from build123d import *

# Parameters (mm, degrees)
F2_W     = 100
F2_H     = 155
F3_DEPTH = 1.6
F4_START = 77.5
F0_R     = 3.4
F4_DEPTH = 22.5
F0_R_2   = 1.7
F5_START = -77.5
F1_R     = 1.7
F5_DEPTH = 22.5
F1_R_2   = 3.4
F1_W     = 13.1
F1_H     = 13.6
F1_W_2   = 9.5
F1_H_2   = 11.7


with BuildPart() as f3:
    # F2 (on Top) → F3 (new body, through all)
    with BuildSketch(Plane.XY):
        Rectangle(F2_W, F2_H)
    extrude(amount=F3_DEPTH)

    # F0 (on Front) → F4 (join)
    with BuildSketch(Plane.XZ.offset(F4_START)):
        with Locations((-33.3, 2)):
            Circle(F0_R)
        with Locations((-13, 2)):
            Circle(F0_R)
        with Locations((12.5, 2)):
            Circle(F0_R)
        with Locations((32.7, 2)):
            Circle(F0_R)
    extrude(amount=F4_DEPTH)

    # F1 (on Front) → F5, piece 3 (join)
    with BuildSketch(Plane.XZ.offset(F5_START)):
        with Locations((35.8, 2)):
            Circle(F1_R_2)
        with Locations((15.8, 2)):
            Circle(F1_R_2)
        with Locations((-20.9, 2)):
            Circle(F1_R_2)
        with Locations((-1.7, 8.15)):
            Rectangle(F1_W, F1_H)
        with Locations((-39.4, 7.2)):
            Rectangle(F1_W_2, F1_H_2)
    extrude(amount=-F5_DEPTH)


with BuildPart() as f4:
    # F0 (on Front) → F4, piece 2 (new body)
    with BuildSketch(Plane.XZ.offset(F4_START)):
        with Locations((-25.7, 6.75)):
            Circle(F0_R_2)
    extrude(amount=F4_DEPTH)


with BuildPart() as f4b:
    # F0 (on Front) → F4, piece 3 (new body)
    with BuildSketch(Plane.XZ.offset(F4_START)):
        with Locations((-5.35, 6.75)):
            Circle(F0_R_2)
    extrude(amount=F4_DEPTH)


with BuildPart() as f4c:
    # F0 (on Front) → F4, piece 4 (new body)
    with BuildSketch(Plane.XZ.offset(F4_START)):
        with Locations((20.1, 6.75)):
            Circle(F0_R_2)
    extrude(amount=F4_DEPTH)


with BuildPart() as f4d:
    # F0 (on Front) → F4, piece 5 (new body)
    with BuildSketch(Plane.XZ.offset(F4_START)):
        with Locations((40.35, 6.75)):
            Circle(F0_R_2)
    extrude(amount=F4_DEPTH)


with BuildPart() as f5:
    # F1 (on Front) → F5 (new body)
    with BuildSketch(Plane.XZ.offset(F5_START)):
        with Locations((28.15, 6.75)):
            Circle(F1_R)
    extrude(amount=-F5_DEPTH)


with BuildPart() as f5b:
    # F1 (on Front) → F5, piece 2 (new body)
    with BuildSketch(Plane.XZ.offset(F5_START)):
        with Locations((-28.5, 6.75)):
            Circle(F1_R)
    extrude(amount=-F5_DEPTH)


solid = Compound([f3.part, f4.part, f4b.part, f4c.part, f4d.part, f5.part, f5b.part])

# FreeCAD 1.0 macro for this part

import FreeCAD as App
import Part
import Sketcher
from FreeCAD import Vector

doc = App.newDocument("Part")
params = doc.addObject("Spreadsheet::Sheet", "Params")
for row, (alias, value) in enumerate([
    ("sketch1_width", "100 mm"),
    ("sketch1_height", "155 mm"),
    ("pad1_length", "1.6 mm"),
    ("sketch2_diameter", "6.8 mm"),
    ("pad2_length", "22.5 mm"),
    ("sketch3_diameter", "6.8 mm"),
    ("sketch3_width", "13.1 mm"),
    ("sketch3_width2", "9.5 mm"),
    ("sketch3_height", "13.6 mm"),
    ("sketch3_height2", "11.7 mm"),
    ("pad3_length", "22.5 mm"),
    ("sketch4_diameter", "3.4 mm"),
    ("pad4_length", "22.5 mm"),
    ("sketch5_diameter", "3.4 mm"),
    ("pad5_length", "22.5 mm"),
    ("sketch6_diameter", "3.4 mm"),
    ("pad6_length", "22.5 mm"),
    ("sketch7_diameter", "3.4 mm"),
    ("pad7_length", "22.5 mm"),
    ("sketch8_diameter", "3.4 mm"),
    ("pad8_length", "22.5 mm"),
    ("sketch9_diameter", "3.4 mm"),
    ("pad9_length", "22.5 mm"),
], start=1):
    params.set(f"A{row}", alias)
    params.set(f"B{row}", "=" + value)
    params.setAlias(f"B{row}", alias)

body = doc.addObject("PartDesign::Body", "Body")

sketch1 = body.newObject("Sketcher::SketchObject", "Sketch")
sketch1.AttachmentSupport = (doc.getObject("XY_Plane"), [""])
sketch1.MapMode = "FlatFace"
sketch1.addGeometry([
    Part.LineSegment(Vector(-50, 77.5, 0), Vector(-50, -77.5, 0)),
    Part.LineSegment(Vector(-50, -77.5, 0), Vector(50, -77.5, 0)),
    Part.LineSegment(Vector(50, -77.5, 0), Vector(50, 77.5, 0)),
    Part.LineSegment(Vector(50, 77.5, 0), Vector(-50, 77.5, 0)),
], False)
sketch1.addConstraint([
    Sketcher.Constraint("Coincident", 0, 2, 1, 1),
    Sketcher.Constraint("Coincident", 1, 2, 2, 1),
    Sketcher.Constraint("Coincident", 2, 2, 3, 1),
    Sketcher.Constraint("Coincident", 3, 2, 0, 1),
    Sketcher.Constraint("Vertical", 0),
    Sketcher.Constraint("Horizontal", 1),
    Sketcher.Constraint("Vertical", 2),
    Sketcher.Constraint("Horizontal", 3),
    Sketcher.Constraint("Symmetric", 0, 2, 2, 2, -1, 1),
    Sketcher.Constraint("DistanceX", 1, 1, 1, 2, 100.0),
    Sketcher.Constraint("DistanceY", 0, 2, 0, 1, 155.0),
])
sketch1.setExpression("Constraints[9]", "Params.sketch1_width")
sketch1.setExpression("Constraints[10]", "Params.sketch1_height")
pad1 = body.newObject("PartDesign::Pad", "Pad")
pad1.Profile = sketch1
pad1.setExpression("Length", "Params.pad1_length")

sketch2 = body.newObject("Sketcher::SketchObject", "Sketch001")
sketch2.AttachmentSupport = (doc.getObject("XZ_Plane"), [""])
sketch2.MapMode = "FlatFace"
sketch2.AttachmentOffset = App.Placement(Vector(0, 0, 77.5), App.Rotation())
sketch2.addGeometry([
    Part.Circle(Vector(-33.3, 2, 0), Vector(0, 0, 1), 3.4),
    Part.Circle(Vector(-13, 2, 0), Vector(0, 0, 1), 3.4),
    Part.Circle(Vector(12.5, 2, 0), Vector(0, 0, 1), 3.4),
    Part.Circle(Vector(32.7, 2, 0), Vector(0, 0, 1), 3.4),
], False)
sketch2.addConstraint([
    Sketcher.Constraint("Equal", 0, 1),
    Sketcher.Constraint("Equal", 1, 2),
    Sketcher.Constraint("Equal", 2, 3),
    Sketcher.Constraint("Horizontal", 0, 3, 1, 3),
    Sketcher.Constraint("Horizontal", 1, 3, 2, 3),
    Sketcher.Constraint("Horizontal", 2, 3, 3, 3),
    Sketcher.Constraint("Diameter", 0, 6.8),
    Sketcher.Constraint("DistanceY", -1, 1, 0, 3, 2.0),
    Sketcher.Constraint("DistanceX", 1, 3, -1, 1, 13.0),
    Sketcher.Constraint("DistanceX", 0, 3, 3, 3, 66.0),
    Sketcher.Constraint("DistanceX", 0, 3, -1, 1, 33.3),
    Sketcher.Constraint("DistanceX", -1, 1, 2, 3, 12.5),
])
sketch2.setExpression("Constraints[6]", "Params.sketch2_diameter")
pad2 = body.newObject("PartDesign::Pad", "Pad001")
pad2.Profile = sketch2
pad2.setExpression("Length", "Params.pad2_length")

sketch3 = body.newObject("Sketcher::SketchObject", "Sketch002")
sketch3.AttachmentSupport = (doc.getObject("XZ_Plane"), [""])
sketch3.MapMode = "FlatFace"
sketch3.AttachmentOffset = App.Placement(Vector(0, 0, -77.5), App.Rotation())
sketch3.addGeometry([
    Part.Circle(Vector(35.8, 2, 0), Vector(0, 0, 1), 3.4),
    Part.Circle(Vector(15.8, 2, 0), Vector(0, 0, 1), 3.4),
    Part.Circle(Vector(-20.9, 2, 0), Vector(0, 0, 1), 3.4),
    Part.LineSegment(Vector(-8.25, 14.95, 0), Vector(-8.25, 1.35, 0)),
    Part.LineSegment(Vector(-8.25, 1.35, 0), Vector(4.85, 1.35, 0)),
    Part.LineSegment(Vector(4.85, 1.35, 0), Vector(4.85, 14.95, 0)),
    Part.LineSegment(Vector(4.85, 14.95, 0), Vector(-8.25, 14.95, 0)),
    Part.LineSegment(Vector(-44.15, 13.05, 0), Vector(-44.15, 1.35, 0)),
    Part.LineSegment(Vector(-44.15, 1.35, 0), Vector(-34.65, 1.35, 0)),
    Part.LineSegment(Vector(-34.65, 1.35, 0), Vector(-34.65, 13.05, 0)),
    Part.LineSegment(Vector(-34.65, 13.05, 0), Vector(-44.15, 13.05, 0)),
], False)
sketch3.addConstraint([
    Sketcher.Constraint("Coincident", 3, 2, 4, 1),
    Sketcher.Constraint("Coincident", 4, 2, 5, 1),
    Sketcher.Constraint("Coincident", 5, 2, 6, 1),
    Sketcher.Constraint("Coincident", 6, 2, 3, 1),
    Sketcher.Constraint("Coincident", 7, 2, 8, 1),
    Sketcher.Constraint("Coincident", 8, 2, 9, 1),
    Sketcher.Constraint("Coincident", 9, 2, 10, 1),
    Sketcher.Constraint("Coincident", 10, 2, 7, 1),
    Sketcher.Constraint("Vertical", 3),
    Sketcher.Constraint("Horizontal", 4),
    Sketcher.Constraint("Vertical", 5),
    Sketcher.Constraint("Horizontal", 6),
    Sketcher.Constraint("Vertical", 7),
    Sketcher.Constraint("Horizontal", 8),
    Sketcher.Constraint("Vertical", 9),
    Sketcher.Constraint("Horizontal", 10),
    Sketcher.Constraint("Equal", 0, 1),
    Sketcher.Constraint("Equal", 1, 2),
    Sketcher.Constraint("Horizontal", 0, 3, 1, 3),
    Sketcher.Constraint("Horizontal", 1, 3, 2, 3),
    Sketcher.Constraint("Horizontal", 4, 2, 7, 2),
    Sketcher.Constraint("Diameter", 0, 6.8),
    Sketcher.Constraint("DistanceX", 4, 1, 4, 2, 13.1),
    Sketcher.Constraint("DistanceX", 8, 1, 8, 2, 9.5),
    Sketcher.Constraint("DistanceY", 3, 2, 3, 1, 13.6),
    Sketcher.Constraint("DistanceY", 7, 2, 7, 1, 11.7),
    Sketcher.Constraint("DistanceY", -1, 1, 0, 3, 2.0),
    Sketcher.Constraint("DistanceX", 1, 3, 0, 3, 20.0),
    Sketcher.Constraint("DistanceX", 7, 2, 4, 2, 49.0),
    Sketcher.Constraint("DistanceX", -1, 1, 0, 3, 35.8),
    Sketcher.Constraint("DistanceX", 2, 3, -1, 1, 20.9),
    Sketcher.Constraint("DistanceX", 3, 2, -1, 1, 8.25),
    Sketcher.Constraint("DistanceY", -1, 1, 3, 2, 1.35),
])
sketch3.setExpression("Constraints[21]", "Params.sketch3_diameter")
sketch3.setExpression("Constraints[22]", "Params.sketch3_width")
sketch3.setExpression("Constraints[23]", "Params.sketch3_width2")
sketch3.setExpression("Constraints[24]", "Params.sketch3_height")
sketch3.setExpression("Constraints[25]", "Params.sketch3_height2")
pad3 = body.newObject("PartDesign::Pad", "Pad002")
pad3.Profile = sketch3
pad3.setExpression("Length", "Params.pad3_length")
pad3.Reversed = True
body2 = doc.addObject("PartDesign::Body", "Body001")

sketch4 = body2.newObject("Sketcher::SketchObject", "Sketch003")
sketch4.AttachmentSupport = (doc.getObject("XZ_Plane001"), [""])
sketch4.MapMode = "FlatFace"
sketch4.AttachmentOffset = App.Placement(Vector(0, 0, 77.5), App.Rotation())
sketch4.addGeometry(Part.Circle(Vector(-25.7, 6.75, 0), Vector(0, 0, 1), 1.7), False)
sketch4.addConstraint([
    Sketcher.Constraint("Diameter", 0, 3.4),
    Sketcher.Constraint("DistanceX", 0, 3, -1, 1, 25.7),
    Sketcher.Constraint("DistanceY", -1, 1, 0, 3, 6.75),
])
sketch4.setExpression("Constraints[0]", "Params.sketch4_diameter")
pad4 = body2.newObject("PartDesign::Pad", "Pad003")
pad4.Profile = sketch4
pad4.setExpression("Length", "Params.pad4_length")
body3 = doc.addObject("PartDesign::Body", "Body002")

sketch5 = body3.newObject("Sketcher::SketchObject", "Sketch004")
sketch5.AttachmentSupport = (doc.getObject("XZ_Plane002"), [""])
sketch5.MapMode = "FlatFace"
sketch5.AttachmentOffset = App.Placement(Vector(0, 0, 77.5), App.Rotation())
sketch5.addGeometry(Part.Circle(Vector(-5.35, 6.75, 0), Vector(0, 0, 1), 1.7), False)
sketch5.addConstraint([
    Sketcher.Constraint("Diameter", 0, 3.4),
    Sketcher.Constraint("DistanceX", 0, 3, -1, 1, 5.35),
    Sketcher.Constraint("DistanceY", -1, 1, 0, 3, 6.75),
])
sketch5.setExpression("Constraints[0]", "Params.sketch5_diameter")
pad5 = body3.newObject("PartDesign::Pad", "Pad004")
pad5.Profile = sketch5
pad5.setExpression("Length", "Params.pad5_length")
body4 = doc.addObject("PartDesign::Body", "Body003")

sketch6 = body4.newObject("Sketcher::SketchObject", "Sketch005")
sketch6.AttachmentSupport = (doc.getObject("XZ_Plane003"), [""])
sketch6.MapMode = "FlatFace"
sketch6.AttachmentOffset = App.Placement(Vector(0, 0, 77.5), App.Rotation())
sketch6.addGeometry(Part.Circle(Vector(20.1, 6.75, 0), Vector(0, 0, 1), 1.7), False)
sketch6.addConstraint([
    Sketcher.Constraint("Diameter", 0, 3.4),
    Sketcher.Constraint("DistanceX", -1, 1, 0, 3, 20.1),
    Sketcher.Constraint("DistanceY", -1, 1, 0, 3, 6.75),
])
sketch6.setExpression("Constraints[0]", "Params.sketch6_diameter")
pad6 = body4.newObject("PartDesign::Pad", "Pad005")
pad6.Profile = sketch6
pad6.setExpression("Length", "Params.pad6_length")
body5 = doc.addObject("PartDesign::Body", "Body004")

sketch7 = body5.newObject("Sketcher::SketchObject", "Sketch006")
sketch7.AttachmentSupport = (doc.getObject("XZ_Plane004"), [""])
sketch7.MapMode = "FlatFace"
sketch7.AttachmentOffset = App.Placement(Vector(0, 0, 77.5), App.Rotation())
sketch7.addGeometry(Part.Circle(Vector(40.35, 6.75, 0), Vector(0, 0, 1), 1.7), False)
sketch7.addConstraint([
    Sketcher.Constraint("Diameter", 0, 3.4),
    Sketcher.Constraint("DistanceX", -1, 1, 0, 3, 40.35),
    Sketcher.Constraint("DistanceY", -1, 1, 0, 3, 6.75),
])
sketch7.setExpression("Constraints[0]", "Params.sketch7_diameter")
pad7 = body5.newObject("PartDesign::Pad", "Pad006")
pad7.Profile = sketch7
pad7.setExpression("Length", "Params.pad7_length")
body6 = doc.addObject("PartDesign::Body", "Body005")

sketch8 = body6.newObject("Sketcher::SketchObject", "Sketch007")
sketch8.AttachmentSupport = (doc.getObject("XZ_Plane005"), [""])
sketch8.MapMode = "FlatFace"
sketch8.AttachmentOffset = App.Placement(Vector(0, 0, -77.5), App.Rotation())
sketch8.addGeometry(Part.Circle(Vector(28.15, 6.75, 0), Vector(0, 0, 1), 1.7), False)
sketch8.addConstraint([
    Sketcher.Constraint("Diameter", 0, 3.4),
    Sketcher.Constraint("DistanceX", -1, 1, 0, 3, 28.15),
    Sketcher.Constraint("DistanceY", -1, 1, 0, 3, 6.75),
])
sketch8.setExpression("Constraints[0]", "Params.sketch8_diameter")
pad8 = body6.newObject("PartDesign::Pad", "Pad007")
pad8.Profile = sketch8
pad8.setExpression("Length", "Params.pad8_length")
pad8.Reversed = True
body7 = doc.addObject("PartDesign::Body", "Body006")

sketch9 = body7.newObject("Sketcher::SketchObject", "Sketch008")
sketch9.AttachmentSupport = (doc.getObject("XZ_Plane006"), [""])
sketch9.MapMode = "FlatFace"
sketch9.AttachmentOffset = App.Placement(Vector(0, 0, -77.5), App.Rotation())
sketch9.addGeometry(Part.Circle(Vector(-28.5, 6.75, 0), Vector(0, 0, 1), 1.7), False)
sketch9.addConstraint([
    Sketcher.Constraint("Diameter", 0, 3.4),
    Sketcher.Constraint("DistanceX", 0, 3, -1, 1, 28.5),
    Sketcher.Constraint("DistanceY", -1, 1, 0, 3, 6.75),
])
sketch9.setExpression("Constraints[0]", "Params.sketch9_diameter")
pad9 = body7.newObject("PartDesign::Pad", "Pad008")
pad9.Profile = sketch9
pad9.setExpression("Length", "Params.pad9_length")
pad9.Reversed = True

doc.recompute()
